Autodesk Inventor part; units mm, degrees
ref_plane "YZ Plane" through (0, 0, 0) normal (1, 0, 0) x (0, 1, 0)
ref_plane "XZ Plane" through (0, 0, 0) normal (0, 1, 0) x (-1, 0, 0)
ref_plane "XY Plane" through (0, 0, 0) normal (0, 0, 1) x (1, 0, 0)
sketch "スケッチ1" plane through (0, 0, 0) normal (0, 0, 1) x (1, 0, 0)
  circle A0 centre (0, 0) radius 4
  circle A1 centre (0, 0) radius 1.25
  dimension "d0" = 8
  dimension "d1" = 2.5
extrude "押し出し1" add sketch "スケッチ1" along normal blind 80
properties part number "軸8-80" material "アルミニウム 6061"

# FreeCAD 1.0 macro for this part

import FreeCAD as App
import Part
import Sketcher

V = App.Vector

doc = App.newDocument("Part")
body = doc.addObject("PartDesign::Body", "Body")

# Sketch on XY plane
sketch1 = body.newObject("Sketcher::SketchObject", "Sketch")
sketch1.AttachmentSupport = (doc.getObject("XY_Plane"), [""])
sketch1.MapMode = "FlatFace"
sketch1.addGeometry(Part.Circle(V(0, 0, 0), V(0, 0, 1), 4), False)
sketch1.addGeometry(Part.Circle(V(0, 0, 0), V(0, 0, 1), 1.25), False)
sketch1.addConstraint(Sketcher.Constraint("Coincident", 0, 3, -1, 1))
sketch1.addConstraint(Sketcher.Constraint("Coincident", 1, 3, -1, 1))
sketch1.addConstraint(Sketcher.Constraint("Diameter", 0, 8.0))
sketch1.addConstraint(Sketcher.Constraint("Diameter", 1, 2.5))
pad1 = body.newObject("PartDesign::Pad", "Pad")
pad1.Profile = sketch1
pad1.Length = 80

doc.recompute()
